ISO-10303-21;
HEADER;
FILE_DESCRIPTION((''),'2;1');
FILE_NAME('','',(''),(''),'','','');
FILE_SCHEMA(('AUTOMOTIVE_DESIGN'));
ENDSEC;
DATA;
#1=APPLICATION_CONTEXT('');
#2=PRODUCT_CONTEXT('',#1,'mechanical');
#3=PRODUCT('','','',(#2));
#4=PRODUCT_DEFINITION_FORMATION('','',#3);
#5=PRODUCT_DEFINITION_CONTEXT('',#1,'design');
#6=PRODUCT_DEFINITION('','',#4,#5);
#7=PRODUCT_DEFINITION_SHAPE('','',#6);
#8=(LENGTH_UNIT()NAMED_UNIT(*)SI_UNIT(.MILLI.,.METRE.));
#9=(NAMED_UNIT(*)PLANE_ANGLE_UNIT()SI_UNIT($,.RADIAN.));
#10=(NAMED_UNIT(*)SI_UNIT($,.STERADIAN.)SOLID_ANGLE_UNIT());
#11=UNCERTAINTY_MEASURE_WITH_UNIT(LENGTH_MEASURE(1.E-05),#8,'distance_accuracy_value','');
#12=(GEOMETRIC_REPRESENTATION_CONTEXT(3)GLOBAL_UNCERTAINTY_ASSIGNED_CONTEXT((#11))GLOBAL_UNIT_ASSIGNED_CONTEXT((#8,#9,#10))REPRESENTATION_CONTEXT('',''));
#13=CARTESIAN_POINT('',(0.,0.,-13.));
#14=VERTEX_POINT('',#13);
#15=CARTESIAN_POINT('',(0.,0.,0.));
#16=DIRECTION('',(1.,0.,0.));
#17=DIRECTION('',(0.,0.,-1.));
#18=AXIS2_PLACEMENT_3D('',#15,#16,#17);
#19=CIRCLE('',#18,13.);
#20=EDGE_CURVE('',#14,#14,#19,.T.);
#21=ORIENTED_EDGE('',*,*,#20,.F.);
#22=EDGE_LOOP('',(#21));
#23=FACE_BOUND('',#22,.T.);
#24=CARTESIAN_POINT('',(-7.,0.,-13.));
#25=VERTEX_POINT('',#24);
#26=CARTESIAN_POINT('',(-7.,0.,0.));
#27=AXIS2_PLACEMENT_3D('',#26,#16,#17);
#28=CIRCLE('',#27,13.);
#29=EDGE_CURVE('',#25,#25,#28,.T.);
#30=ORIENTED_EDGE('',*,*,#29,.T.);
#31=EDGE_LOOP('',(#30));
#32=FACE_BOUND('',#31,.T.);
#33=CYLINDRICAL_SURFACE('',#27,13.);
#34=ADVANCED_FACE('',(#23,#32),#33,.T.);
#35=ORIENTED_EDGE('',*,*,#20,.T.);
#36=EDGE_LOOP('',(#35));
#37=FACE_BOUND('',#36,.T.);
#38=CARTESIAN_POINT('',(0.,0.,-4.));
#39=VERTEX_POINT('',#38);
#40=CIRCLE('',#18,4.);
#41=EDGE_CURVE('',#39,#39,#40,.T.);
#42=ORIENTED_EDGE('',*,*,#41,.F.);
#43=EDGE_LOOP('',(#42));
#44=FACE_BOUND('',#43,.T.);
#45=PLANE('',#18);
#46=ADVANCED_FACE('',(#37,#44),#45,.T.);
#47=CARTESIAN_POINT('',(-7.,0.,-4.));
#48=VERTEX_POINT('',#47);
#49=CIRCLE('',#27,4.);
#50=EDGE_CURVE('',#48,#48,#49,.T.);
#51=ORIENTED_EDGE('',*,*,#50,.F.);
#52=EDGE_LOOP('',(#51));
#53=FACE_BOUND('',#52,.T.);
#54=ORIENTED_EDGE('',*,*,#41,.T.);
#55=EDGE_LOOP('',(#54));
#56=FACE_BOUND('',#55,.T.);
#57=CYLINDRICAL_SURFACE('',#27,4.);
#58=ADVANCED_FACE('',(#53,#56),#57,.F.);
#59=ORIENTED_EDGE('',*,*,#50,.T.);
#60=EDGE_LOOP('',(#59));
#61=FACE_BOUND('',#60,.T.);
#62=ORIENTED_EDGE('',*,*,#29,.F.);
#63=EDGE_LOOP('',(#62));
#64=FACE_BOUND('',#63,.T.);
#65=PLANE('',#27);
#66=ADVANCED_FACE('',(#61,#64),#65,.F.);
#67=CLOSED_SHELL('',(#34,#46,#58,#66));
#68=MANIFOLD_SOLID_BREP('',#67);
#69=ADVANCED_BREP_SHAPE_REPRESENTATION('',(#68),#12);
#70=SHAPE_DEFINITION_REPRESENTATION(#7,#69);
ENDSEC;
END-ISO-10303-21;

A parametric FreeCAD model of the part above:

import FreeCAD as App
import Part
import Sketcher

V = App.Vector
Q = App.Units.Quantity

doc = App.newDocument("Part")
body = doc.addObject("PartDesign::Body", "Body")

# Sketch on YZ plane
sketch1 = body.newObject("Sketcher::SketchObject", "Sketch")
sketch1.AttachmentSupport = (doc.getObject("YZ_Plane"), [""])
sketch1.MapMode = "FlatFace"
sketch1.addGeometry(Part.Circle(V(0, 0, 0), V(0, 0, 1), 13), False)
sketch1.addGeometry(Part.Circle(V(0, 0, 0), V(0, 0, 1), 4), False)
sketch1.addConstraint(Sketcher.Constraint("Coincident", 0, 3, -1, 1))
sketch1.addConstraint(Sketcher.Constraint("Coincident", 1, 3, -1, 1))
sketch1.addConstraint(Sketcher.Constraint("Diameter", 0, Q("26 mm")))
sketch1.addConstraint(Sketcher.Constraint("Diameter", 1, Q("8 mm")))
pad1 = body.newObject("PartDesign::Pad", "Pad")
pad1.Profile = sketch1
pad1.Length = 7
pad1.Reversed = True

doc.recompute()
